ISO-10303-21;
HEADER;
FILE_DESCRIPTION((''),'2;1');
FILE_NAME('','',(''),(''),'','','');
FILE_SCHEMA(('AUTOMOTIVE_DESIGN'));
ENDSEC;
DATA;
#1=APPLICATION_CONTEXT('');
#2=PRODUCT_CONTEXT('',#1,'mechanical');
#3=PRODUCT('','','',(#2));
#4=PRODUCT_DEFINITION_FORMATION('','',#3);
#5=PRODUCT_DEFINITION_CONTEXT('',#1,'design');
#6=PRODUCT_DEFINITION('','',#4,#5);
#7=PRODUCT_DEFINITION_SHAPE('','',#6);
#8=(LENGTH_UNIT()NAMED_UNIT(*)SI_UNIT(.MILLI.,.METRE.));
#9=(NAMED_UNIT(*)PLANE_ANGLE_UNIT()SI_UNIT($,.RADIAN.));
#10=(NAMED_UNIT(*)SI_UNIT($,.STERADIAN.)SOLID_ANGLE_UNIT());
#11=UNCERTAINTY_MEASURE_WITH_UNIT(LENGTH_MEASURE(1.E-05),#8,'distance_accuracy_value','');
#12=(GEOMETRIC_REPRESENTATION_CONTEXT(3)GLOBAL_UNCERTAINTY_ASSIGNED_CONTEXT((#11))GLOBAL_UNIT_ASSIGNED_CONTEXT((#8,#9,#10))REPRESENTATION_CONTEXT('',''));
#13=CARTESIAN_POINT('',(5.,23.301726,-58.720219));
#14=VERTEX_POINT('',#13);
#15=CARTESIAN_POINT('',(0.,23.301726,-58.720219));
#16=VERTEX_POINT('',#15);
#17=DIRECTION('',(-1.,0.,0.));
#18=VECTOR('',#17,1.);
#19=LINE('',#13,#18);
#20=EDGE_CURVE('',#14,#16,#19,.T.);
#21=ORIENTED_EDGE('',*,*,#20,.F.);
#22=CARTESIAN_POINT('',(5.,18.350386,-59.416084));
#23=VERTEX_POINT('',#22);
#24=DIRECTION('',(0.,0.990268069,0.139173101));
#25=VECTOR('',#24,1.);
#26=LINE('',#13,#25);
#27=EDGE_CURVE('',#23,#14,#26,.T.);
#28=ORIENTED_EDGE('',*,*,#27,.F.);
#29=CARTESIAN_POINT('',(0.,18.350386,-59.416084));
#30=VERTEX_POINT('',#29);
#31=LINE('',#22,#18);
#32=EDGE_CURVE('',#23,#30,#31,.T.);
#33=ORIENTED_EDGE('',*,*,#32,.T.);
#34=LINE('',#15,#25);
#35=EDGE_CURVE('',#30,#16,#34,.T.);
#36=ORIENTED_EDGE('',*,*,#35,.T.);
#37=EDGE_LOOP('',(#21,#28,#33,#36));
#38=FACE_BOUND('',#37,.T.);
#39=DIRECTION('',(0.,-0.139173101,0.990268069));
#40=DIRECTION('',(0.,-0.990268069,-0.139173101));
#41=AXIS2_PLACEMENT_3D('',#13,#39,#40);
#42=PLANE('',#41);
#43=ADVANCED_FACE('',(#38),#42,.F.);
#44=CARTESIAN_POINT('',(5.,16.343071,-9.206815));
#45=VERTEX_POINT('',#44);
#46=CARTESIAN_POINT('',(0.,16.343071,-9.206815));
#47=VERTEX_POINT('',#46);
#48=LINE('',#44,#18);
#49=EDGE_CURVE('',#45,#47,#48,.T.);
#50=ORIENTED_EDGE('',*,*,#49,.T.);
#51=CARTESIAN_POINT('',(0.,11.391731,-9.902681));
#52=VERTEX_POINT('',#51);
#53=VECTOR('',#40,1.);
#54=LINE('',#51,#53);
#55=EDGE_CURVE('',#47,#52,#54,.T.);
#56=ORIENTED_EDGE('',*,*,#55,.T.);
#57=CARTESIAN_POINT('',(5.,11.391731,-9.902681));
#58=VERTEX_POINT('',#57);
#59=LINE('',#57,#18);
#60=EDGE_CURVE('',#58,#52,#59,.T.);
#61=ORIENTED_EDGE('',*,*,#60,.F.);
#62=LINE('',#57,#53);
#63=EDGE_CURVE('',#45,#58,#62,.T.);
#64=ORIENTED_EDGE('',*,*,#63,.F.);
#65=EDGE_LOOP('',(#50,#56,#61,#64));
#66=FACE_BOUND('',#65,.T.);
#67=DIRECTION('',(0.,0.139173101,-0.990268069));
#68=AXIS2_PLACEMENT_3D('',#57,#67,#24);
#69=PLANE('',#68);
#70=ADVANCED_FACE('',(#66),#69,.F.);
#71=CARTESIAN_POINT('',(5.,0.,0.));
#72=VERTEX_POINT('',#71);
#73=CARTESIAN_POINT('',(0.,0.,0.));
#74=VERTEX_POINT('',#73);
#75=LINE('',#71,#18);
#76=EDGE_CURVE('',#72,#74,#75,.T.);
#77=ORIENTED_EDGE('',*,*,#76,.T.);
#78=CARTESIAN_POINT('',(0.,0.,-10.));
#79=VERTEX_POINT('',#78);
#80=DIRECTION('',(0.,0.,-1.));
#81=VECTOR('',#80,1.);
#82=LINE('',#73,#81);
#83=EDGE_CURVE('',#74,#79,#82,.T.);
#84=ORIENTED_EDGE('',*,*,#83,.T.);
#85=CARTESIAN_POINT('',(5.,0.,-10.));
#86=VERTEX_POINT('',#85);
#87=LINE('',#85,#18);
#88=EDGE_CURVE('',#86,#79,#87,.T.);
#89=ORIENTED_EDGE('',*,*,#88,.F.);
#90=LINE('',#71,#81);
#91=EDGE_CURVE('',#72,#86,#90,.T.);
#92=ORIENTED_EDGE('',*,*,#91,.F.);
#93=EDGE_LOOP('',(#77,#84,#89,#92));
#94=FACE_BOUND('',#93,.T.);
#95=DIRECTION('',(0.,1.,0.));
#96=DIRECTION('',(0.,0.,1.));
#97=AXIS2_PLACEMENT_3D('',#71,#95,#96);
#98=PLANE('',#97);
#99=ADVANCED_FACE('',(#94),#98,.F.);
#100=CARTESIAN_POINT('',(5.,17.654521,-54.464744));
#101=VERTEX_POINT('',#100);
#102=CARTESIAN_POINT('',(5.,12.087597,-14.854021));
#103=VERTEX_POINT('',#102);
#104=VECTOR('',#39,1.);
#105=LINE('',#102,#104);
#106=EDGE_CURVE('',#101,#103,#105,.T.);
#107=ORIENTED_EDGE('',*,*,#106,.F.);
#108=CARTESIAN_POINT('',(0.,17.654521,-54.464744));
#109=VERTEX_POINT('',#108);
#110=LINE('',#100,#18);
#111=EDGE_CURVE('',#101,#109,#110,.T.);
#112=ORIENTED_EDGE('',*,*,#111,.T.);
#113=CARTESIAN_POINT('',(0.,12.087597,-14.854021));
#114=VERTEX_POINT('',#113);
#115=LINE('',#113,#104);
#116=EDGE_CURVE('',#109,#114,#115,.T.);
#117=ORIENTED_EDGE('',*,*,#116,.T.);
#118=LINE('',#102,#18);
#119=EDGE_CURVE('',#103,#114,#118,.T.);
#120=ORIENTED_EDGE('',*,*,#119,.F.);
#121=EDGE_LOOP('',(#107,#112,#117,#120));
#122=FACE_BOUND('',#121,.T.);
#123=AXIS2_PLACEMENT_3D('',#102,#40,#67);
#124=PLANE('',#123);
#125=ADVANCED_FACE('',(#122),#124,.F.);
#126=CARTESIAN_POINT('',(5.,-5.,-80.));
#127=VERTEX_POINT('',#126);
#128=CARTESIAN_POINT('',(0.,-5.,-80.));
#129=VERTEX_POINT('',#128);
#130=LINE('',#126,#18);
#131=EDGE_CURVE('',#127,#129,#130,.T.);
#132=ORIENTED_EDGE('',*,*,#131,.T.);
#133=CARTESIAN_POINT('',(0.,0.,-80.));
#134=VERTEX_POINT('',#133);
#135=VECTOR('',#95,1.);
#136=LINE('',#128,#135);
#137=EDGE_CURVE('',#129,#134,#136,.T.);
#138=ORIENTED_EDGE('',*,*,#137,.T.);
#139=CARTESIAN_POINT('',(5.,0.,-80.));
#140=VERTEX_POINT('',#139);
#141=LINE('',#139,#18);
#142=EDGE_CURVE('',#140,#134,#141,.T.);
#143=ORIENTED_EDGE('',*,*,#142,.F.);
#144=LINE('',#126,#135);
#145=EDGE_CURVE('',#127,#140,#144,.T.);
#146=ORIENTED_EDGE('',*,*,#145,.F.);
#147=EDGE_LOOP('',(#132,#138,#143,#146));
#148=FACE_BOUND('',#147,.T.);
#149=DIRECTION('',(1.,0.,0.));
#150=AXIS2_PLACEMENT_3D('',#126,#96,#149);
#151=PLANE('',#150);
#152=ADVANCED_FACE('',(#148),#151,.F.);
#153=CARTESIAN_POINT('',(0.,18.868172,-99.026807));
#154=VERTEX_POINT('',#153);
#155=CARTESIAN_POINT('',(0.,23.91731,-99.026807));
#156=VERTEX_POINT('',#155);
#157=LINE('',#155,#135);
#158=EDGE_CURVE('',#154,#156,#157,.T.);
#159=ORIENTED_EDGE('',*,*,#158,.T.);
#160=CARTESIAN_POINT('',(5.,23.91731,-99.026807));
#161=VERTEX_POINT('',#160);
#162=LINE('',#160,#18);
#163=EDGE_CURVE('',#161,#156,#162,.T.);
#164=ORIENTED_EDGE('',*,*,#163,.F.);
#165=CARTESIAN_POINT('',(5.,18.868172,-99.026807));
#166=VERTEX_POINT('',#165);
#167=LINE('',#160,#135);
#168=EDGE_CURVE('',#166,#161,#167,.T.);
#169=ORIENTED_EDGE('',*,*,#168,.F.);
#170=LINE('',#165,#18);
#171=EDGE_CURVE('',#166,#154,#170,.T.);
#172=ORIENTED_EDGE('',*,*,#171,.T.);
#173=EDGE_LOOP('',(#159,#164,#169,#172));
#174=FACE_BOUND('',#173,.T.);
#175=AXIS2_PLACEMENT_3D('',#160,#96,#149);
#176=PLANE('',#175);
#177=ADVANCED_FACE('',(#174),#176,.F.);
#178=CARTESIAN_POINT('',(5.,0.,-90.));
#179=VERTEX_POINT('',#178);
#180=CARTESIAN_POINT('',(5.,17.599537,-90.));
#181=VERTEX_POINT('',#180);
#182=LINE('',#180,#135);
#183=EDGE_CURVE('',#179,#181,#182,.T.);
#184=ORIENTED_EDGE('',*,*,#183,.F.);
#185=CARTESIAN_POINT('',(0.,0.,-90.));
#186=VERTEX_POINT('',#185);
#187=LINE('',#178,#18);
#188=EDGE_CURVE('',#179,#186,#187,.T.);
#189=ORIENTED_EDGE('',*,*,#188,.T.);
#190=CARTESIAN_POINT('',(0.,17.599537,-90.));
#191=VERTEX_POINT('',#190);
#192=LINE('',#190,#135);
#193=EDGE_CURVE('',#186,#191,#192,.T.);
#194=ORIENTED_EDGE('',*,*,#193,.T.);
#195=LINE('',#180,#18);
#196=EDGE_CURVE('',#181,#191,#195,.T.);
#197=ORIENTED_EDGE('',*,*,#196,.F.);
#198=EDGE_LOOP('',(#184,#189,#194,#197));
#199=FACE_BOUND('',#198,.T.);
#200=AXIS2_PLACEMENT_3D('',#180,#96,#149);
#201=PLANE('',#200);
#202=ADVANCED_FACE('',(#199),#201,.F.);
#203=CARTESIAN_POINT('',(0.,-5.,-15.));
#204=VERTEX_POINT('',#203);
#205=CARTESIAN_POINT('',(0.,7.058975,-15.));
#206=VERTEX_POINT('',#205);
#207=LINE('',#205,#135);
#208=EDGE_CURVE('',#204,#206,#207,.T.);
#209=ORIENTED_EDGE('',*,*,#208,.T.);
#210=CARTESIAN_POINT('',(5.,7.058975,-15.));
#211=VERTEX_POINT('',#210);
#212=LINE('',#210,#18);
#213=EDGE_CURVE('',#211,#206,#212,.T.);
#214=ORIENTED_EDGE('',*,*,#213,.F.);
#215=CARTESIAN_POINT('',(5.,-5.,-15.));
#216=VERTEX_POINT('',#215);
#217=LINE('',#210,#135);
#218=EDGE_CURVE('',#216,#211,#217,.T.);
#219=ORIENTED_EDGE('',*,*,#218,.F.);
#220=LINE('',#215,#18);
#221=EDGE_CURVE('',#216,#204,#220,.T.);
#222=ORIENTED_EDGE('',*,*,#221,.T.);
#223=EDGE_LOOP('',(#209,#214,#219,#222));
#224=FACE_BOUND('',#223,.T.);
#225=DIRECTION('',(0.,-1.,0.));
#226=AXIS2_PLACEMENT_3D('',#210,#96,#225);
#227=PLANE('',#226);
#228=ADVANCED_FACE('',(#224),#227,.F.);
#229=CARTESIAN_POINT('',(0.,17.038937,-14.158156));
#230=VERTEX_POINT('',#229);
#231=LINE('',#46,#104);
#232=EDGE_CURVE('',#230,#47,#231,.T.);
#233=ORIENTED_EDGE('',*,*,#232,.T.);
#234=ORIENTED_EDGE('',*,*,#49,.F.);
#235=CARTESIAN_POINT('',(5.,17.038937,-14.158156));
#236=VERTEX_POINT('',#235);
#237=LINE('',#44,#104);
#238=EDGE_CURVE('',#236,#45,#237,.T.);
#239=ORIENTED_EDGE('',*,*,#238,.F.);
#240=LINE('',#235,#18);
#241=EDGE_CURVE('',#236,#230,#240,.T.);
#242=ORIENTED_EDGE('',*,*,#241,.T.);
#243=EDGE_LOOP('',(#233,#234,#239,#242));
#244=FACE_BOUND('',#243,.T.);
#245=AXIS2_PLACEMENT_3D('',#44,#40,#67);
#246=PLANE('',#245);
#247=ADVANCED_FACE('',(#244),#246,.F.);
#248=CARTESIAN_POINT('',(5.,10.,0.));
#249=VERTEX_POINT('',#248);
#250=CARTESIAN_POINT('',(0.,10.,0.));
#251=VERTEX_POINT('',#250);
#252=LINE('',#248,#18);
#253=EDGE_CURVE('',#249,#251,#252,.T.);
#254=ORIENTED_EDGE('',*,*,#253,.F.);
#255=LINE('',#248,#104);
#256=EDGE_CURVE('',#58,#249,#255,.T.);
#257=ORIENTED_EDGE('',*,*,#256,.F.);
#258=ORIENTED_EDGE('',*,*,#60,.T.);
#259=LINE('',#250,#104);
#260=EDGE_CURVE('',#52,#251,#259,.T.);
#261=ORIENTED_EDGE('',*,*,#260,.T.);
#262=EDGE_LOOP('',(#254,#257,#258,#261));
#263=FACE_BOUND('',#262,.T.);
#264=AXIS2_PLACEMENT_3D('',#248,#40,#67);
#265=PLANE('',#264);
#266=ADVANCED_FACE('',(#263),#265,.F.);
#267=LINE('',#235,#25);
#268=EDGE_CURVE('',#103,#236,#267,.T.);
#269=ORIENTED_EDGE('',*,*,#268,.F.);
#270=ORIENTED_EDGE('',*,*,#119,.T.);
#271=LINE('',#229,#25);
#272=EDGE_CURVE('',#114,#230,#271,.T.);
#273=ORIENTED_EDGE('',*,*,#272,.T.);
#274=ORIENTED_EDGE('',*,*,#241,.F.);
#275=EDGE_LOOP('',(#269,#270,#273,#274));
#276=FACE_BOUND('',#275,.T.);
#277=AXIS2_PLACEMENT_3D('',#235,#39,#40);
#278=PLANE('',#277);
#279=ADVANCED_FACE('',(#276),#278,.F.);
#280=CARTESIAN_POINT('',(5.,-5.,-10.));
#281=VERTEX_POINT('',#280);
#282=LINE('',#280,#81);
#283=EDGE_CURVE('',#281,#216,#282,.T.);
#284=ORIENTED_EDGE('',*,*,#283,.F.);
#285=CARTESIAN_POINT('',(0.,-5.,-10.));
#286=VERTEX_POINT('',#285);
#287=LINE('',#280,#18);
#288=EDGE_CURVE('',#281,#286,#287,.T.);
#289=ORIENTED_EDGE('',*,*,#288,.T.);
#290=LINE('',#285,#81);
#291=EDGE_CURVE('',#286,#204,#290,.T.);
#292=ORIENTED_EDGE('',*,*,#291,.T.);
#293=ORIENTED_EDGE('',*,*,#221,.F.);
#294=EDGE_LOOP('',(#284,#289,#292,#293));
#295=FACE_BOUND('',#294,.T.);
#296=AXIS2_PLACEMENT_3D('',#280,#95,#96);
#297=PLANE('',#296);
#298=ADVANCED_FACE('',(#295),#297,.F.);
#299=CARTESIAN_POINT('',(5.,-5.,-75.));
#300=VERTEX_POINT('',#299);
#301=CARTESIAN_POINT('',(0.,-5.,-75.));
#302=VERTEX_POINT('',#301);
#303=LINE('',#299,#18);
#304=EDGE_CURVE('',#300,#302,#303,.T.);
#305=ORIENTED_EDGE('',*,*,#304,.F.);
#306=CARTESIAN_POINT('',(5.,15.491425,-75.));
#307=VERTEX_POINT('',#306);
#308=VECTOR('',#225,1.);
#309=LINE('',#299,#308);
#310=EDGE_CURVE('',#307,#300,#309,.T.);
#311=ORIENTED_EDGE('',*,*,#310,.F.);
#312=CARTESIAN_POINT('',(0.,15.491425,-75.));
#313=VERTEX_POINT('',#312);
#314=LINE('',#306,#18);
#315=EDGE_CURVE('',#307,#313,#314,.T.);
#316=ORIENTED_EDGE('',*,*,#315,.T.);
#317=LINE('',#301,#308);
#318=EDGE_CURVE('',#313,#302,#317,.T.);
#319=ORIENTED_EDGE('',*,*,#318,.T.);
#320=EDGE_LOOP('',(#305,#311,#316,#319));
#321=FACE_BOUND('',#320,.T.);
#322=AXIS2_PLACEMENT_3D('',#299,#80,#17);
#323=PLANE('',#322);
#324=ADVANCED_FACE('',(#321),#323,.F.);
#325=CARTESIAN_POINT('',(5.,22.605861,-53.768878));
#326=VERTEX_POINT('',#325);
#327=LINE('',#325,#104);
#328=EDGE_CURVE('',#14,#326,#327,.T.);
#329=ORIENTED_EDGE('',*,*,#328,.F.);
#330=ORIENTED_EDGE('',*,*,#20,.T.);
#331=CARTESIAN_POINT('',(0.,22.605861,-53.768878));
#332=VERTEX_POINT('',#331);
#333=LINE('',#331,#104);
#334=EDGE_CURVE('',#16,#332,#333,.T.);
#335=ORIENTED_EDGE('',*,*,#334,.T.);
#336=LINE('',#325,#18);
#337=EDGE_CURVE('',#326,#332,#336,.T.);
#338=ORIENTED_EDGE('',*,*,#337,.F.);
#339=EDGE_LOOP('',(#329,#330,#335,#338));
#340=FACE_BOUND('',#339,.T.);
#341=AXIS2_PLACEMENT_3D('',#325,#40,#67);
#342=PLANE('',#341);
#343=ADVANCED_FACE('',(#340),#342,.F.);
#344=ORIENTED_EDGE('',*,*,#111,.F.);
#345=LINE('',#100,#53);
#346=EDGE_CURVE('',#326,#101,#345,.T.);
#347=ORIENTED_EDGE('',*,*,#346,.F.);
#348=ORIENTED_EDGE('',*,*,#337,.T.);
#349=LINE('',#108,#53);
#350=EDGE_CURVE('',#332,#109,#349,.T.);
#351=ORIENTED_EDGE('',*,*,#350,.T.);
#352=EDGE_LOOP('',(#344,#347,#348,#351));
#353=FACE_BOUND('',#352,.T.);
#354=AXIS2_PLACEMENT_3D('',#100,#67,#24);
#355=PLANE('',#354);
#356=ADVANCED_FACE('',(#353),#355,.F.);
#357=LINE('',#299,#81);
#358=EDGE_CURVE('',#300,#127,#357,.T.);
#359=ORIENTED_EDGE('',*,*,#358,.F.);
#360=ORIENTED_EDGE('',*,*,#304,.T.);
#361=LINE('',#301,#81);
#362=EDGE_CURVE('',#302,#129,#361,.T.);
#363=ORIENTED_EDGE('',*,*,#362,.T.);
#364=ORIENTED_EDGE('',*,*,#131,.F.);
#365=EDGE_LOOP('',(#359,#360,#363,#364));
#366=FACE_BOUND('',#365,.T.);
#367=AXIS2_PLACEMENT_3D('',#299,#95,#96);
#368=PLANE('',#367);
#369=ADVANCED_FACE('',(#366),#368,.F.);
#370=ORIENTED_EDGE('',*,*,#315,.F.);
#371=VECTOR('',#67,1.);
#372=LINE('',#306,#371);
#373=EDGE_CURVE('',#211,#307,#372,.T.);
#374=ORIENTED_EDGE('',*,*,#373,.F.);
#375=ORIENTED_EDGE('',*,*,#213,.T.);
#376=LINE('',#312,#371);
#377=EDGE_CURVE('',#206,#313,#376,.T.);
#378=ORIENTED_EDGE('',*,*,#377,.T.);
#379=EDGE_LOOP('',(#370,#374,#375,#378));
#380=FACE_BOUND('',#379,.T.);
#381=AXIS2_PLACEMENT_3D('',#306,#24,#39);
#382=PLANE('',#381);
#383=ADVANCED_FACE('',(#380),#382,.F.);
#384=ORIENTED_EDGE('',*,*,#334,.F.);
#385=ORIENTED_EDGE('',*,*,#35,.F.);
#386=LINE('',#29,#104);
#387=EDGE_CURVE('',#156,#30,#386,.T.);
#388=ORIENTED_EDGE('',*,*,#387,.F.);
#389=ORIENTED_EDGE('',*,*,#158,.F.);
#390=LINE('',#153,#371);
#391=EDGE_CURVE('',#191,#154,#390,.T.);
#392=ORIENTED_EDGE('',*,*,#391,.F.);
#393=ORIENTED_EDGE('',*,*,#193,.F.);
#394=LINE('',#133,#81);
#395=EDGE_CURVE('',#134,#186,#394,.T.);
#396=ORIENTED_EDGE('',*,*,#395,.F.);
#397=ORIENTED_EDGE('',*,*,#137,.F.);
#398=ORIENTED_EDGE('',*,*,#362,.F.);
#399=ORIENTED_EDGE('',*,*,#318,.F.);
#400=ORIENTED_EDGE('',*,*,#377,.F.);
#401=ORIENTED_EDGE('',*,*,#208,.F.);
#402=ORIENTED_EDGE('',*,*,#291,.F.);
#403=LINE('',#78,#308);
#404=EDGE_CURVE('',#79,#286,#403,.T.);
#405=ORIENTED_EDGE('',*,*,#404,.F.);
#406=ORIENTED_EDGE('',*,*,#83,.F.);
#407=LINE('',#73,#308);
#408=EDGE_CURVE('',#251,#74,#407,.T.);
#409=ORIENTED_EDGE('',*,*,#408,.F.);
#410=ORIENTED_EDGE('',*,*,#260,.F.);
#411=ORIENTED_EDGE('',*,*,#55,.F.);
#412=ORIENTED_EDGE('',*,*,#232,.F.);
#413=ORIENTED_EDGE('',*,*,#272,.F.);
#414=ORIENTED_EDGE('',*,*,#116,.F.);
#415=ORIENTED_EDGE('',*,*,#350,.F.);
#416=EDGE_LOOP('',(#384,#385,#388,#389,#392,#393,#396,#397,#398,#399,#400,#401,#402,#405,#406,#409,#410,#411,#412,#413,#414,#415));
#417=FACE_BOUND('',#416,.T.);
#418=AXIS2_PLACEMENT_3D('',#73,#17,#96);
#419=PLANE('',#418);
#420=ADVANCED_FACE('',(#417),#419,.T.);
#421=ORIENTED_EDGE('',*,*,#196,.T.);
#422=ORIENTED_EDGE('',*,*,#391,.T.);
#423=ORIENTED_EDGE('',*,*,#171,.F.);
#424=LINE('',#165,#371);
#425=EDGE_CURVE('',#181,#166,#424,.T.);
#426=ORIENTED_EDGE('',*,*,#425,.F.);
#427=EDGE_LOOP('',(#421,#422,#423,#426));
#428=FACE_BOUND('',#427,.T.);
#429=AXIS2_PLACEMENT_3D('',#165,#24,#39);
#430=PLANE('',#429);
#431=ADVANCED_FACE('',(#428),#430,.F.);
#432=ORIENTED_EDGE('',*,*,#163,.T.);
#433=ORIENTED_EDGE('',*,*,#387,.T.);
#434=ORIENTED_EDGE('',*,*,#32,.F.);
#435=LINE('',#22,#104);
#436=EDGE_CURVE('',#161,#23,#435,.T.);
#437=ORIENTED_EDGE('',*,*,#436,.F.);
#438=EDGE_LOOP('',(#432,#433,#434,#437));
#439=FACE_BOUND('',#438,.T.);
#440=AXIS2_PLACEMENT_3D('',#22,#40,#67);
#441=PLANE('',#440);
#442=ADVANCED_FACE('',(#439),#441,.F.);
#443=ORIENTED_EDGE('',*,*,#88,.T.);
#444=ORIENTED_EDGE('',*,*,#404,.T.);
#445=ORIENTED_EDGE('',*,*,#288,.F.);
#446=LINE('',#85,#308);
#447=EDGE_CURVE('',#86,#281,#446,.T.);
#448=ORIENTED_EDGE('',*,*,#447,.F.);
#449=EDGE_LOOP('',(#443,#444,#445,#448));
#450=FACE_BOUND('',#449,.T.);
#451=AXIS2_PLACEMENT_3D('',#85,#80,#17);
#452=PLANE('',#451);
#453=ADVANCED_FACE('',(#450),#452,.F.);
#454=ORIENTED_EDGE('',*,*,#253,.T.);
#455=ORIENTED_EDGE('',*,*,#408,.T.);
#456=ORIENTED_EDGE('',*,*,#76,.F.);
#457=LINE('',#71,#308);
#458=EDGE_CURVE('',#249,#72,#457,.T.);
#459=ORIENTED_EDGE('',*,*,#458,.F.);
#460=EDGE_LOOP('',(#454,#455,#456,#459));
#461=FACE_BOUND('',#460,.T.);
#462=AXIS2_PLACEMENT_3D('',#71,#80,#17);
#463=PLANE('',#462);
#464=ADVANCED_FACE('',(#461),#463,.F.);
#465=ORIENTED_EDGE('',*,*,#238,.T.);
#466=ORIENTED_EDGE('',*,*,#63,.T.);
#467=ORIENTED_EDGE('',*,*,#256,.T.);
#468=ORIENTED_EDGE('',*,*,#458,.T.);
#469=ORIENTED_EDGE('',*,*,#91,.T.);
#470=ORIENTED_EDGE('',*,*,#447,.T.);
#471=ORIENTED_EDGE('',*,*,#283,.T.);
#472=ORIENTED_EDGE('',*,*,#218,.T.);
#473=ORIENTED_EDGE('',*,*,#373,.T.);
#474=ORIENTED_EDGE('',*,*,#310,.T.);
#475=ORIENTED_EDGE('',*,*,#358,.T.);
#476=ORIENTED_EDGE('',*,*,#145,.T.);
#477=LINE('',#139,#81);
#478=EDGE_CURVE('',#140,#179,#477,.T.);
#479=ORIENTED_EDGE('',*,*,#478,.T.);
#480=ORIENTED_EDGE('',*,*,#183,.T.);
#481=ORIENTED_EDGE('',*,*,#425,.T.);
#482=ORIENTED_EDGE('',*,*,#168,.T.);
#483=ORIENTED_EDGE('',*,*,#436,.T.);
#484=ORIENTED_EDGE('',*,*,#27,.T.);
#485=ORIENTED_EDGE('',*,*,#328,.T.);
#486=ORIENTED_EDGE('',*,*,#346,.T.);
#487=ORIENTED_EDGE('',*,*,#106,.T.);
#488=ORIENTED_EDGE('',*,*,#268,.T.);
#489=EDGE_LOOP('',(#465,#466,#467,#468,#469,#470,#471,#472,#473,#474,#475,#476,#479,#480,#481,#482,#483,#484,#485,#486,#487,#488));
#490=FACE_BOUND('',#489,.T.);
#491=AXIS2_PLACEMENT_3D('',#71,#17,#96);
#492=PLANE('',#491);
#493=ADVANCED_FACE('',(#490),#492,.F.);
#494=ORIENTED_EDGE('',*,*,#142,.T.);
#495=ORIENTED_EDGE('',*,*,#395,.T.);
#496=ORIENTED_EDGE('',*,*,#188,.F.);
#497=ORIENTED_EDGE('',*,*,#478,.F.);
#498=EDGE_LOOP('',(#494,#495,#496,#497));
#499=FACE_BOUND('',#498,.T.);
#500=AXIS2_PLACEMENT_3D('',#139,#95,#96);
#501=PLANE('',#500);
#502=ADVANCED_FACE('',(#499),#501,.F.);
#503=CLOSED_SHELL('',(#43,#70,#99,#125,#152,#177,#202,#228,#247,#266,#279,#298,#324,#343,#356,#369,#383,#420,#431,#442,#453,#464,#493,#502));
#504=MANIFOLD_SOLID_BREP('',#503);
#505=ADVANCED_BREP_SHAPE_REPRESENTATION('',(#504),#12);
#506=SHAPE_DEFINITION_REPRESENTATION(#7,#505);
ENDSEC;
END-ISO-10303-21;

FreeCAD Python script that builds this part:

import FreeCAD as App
import Part
import Sketcher
from FreeCAD import Vector
Q = App.Units.Quantity


def add_polygon(sketch, points):
    """Adds a closed chain of lines whose ends are joined by coincident constraints."""
    first, n = sketch.GeometryCount, len(points)
    for a, b in zip(points, points[1:] + points[:1]):
        sketch.addGeometry(Part.LineSegment(App.Vector(*a, 0), App.Vector(*b, 0)), False)
    for i in range(n):
        sketch.addConstraint(Sketcher.Constraint("Coincident", first + i, 2, first + (i + 1) % n, 1))

doc = App.newDocument("Part")
params = doc.addObject("Spreadsheet::Sheet", "Params")
for row, (alias, value) in enumerate([
    ("sketch1_width", "10 mm"),
    ("sketch1_width2", "5 mm"),
    ("sketch1_length", "40 mm"),
    ("sketch1_length2", "5 mm"),
    ("sketch1_length3", "10 mm"),
    ("pad1_length", "5 mm"),
], start=1):
    params.set(f"A{row}", alias)
    params.set(f"B{row}", "=" + value)
    params.setAlias(f"B{row}", alias)

body = doc.addObject("PartDesign::Body", "Body")

# Sketch on YZ plane
sketch1 = body.newObject("Sketcher::SketchObject", "Sketch")
sketch1.AttachmentSupport = (doc.getObject("YZ_Plane"), [""])
sketch1.MapMode = "FlatFace"
add_polygon(sketch1, [(10, 0), (0, 0), (0, -10), (-5, -10), (-5, -15), (7.1, -15), (15.5, -75), (-5, -75), (-5, -80), (0, -80), (0, -90), (17.6, -90), (18.9, -99), (23.9, -99), (18.4, -59.4), (23.3, -58.7), (22.6, -53.8), (17.7, -54.5), (12.1, -14.9), (17, -14.2), (16.3, -9.2), (11.4, -9.9)])  # lines 0-21
sketch1.addConstraint([
    Sketcher.Constraint("Horizontal", 0),
    Sketcher.Constraint("Vertical", 1),
    Sketcher.Constraint("Horizontal", 2),
    Sketcher.Constraint("Vertical", 3),
    Sketcher.Constraint("Horizontal", 4),
    Sketcher.Constraint("Horizontal", 6),
    Sketcher.Constraint("Vertical", 7),
    Sketcher.Constraint("Horizontal", 8),
    Sketcher.Constraint("Vertical", 9),
    Sketcher.Constraint("Horizontal", 10),
    Sketcher.Constraint("Horizontal", 12),
    Sketcher.Constraint("Coincident", 0, 2, -1, 1),
    Sketcher.Constraint("PointOnObject", 8, 2, -2),
    Sketcher.Constraint("Parallel", 5, 11),
    Sketcher.Constraint("Parallel", 11, 13),
    Sketcher.Constraint("Perpendicular", 13, 14),
    Sketcher.Constraint("Perpendicular", 14, 15),
    Sketcher.Constraint("Perpendicular", 15, 16),
    Sketcher.Constraint("Perpendicular", 16, 17),
    Sketcher.Constraint("Perpendicular", 17, 18),
    Sketcher.Constraint("Perpendicular", 18, 19),
    Sketcher.Constraint("Perpendicular", 19, 20),
    Sketcher.Constraint("Perpendicular", 20, 21),
    Sketcher.Constraint("Vertical", 3, 2, 6, 2),
    Sketcher.Constraint("Equal", 0, 1),
    Sketcher.Constraint("Equal", 8, 3),
    Sketcher.Constraint("Equal", 3, 7),
    Sketcher.Constraint("Equal", 1, 9),
    Sketcher.Constraint("Equal", 14, 15),
    Sketcher.Constraint("Equal", 15, 16),
    Sketcher.Constraint("Equal", 13, 17),
    Sketcher.Constraint("Equal", 16, 18),
    Sketcher.Constraint("Equal", 18, 19),
    Sketcher.Constraint("Equal", 19, 20),
    Sketcher.Constraint("DistanceX", 0, 2, 0, 1, Q("10 mm")),
    Sketcher.Constraint("DistanceX", 2, 2, 2, 1, Q("5 mm")),
    Sketcher.Constraint("Angle", 5, Q("-82 deg")),
    Sketcher.Constraint("Distance", 13, Q("40 mm")),
    Sketcher.Constraint("Distance", 14, Q("5 mm")),
    Sketcher.Constraint("Distance", 21, Q("10 mm")),
    Sketcher.Constraint("DistanceY", 5, 2, -1, 1, Q("75 mm")),
    Sketcher.Constraint("DistanceX", 5, 2, 14, 2, Q("7.810302 mm")),
    Sketcher.Constraint("DistanceX", 10, 1, 10, 2, Q("17.599537 mm")),
])
sketch1.setExpression("Constraints[56]", "Params.sketch1_width")
sketch1.setExpression("Constraints[57]", "Params.sketch1_width2")
sketch1.setExpression("Constraints[59]", "Params.sketch1_length")
sketch1.setExpression("Constraints[60]", "Params.sketch1_length2")
sketch1.setExpression("Constraints[61]", "Params.sketch1_length3")
pad1 = body.newObject("PartDesign::Pad", "Pad")
pad1.Profile = sketch1
pad1.setExpression("Length", "Params.pad1_length")

doc.recompute()
